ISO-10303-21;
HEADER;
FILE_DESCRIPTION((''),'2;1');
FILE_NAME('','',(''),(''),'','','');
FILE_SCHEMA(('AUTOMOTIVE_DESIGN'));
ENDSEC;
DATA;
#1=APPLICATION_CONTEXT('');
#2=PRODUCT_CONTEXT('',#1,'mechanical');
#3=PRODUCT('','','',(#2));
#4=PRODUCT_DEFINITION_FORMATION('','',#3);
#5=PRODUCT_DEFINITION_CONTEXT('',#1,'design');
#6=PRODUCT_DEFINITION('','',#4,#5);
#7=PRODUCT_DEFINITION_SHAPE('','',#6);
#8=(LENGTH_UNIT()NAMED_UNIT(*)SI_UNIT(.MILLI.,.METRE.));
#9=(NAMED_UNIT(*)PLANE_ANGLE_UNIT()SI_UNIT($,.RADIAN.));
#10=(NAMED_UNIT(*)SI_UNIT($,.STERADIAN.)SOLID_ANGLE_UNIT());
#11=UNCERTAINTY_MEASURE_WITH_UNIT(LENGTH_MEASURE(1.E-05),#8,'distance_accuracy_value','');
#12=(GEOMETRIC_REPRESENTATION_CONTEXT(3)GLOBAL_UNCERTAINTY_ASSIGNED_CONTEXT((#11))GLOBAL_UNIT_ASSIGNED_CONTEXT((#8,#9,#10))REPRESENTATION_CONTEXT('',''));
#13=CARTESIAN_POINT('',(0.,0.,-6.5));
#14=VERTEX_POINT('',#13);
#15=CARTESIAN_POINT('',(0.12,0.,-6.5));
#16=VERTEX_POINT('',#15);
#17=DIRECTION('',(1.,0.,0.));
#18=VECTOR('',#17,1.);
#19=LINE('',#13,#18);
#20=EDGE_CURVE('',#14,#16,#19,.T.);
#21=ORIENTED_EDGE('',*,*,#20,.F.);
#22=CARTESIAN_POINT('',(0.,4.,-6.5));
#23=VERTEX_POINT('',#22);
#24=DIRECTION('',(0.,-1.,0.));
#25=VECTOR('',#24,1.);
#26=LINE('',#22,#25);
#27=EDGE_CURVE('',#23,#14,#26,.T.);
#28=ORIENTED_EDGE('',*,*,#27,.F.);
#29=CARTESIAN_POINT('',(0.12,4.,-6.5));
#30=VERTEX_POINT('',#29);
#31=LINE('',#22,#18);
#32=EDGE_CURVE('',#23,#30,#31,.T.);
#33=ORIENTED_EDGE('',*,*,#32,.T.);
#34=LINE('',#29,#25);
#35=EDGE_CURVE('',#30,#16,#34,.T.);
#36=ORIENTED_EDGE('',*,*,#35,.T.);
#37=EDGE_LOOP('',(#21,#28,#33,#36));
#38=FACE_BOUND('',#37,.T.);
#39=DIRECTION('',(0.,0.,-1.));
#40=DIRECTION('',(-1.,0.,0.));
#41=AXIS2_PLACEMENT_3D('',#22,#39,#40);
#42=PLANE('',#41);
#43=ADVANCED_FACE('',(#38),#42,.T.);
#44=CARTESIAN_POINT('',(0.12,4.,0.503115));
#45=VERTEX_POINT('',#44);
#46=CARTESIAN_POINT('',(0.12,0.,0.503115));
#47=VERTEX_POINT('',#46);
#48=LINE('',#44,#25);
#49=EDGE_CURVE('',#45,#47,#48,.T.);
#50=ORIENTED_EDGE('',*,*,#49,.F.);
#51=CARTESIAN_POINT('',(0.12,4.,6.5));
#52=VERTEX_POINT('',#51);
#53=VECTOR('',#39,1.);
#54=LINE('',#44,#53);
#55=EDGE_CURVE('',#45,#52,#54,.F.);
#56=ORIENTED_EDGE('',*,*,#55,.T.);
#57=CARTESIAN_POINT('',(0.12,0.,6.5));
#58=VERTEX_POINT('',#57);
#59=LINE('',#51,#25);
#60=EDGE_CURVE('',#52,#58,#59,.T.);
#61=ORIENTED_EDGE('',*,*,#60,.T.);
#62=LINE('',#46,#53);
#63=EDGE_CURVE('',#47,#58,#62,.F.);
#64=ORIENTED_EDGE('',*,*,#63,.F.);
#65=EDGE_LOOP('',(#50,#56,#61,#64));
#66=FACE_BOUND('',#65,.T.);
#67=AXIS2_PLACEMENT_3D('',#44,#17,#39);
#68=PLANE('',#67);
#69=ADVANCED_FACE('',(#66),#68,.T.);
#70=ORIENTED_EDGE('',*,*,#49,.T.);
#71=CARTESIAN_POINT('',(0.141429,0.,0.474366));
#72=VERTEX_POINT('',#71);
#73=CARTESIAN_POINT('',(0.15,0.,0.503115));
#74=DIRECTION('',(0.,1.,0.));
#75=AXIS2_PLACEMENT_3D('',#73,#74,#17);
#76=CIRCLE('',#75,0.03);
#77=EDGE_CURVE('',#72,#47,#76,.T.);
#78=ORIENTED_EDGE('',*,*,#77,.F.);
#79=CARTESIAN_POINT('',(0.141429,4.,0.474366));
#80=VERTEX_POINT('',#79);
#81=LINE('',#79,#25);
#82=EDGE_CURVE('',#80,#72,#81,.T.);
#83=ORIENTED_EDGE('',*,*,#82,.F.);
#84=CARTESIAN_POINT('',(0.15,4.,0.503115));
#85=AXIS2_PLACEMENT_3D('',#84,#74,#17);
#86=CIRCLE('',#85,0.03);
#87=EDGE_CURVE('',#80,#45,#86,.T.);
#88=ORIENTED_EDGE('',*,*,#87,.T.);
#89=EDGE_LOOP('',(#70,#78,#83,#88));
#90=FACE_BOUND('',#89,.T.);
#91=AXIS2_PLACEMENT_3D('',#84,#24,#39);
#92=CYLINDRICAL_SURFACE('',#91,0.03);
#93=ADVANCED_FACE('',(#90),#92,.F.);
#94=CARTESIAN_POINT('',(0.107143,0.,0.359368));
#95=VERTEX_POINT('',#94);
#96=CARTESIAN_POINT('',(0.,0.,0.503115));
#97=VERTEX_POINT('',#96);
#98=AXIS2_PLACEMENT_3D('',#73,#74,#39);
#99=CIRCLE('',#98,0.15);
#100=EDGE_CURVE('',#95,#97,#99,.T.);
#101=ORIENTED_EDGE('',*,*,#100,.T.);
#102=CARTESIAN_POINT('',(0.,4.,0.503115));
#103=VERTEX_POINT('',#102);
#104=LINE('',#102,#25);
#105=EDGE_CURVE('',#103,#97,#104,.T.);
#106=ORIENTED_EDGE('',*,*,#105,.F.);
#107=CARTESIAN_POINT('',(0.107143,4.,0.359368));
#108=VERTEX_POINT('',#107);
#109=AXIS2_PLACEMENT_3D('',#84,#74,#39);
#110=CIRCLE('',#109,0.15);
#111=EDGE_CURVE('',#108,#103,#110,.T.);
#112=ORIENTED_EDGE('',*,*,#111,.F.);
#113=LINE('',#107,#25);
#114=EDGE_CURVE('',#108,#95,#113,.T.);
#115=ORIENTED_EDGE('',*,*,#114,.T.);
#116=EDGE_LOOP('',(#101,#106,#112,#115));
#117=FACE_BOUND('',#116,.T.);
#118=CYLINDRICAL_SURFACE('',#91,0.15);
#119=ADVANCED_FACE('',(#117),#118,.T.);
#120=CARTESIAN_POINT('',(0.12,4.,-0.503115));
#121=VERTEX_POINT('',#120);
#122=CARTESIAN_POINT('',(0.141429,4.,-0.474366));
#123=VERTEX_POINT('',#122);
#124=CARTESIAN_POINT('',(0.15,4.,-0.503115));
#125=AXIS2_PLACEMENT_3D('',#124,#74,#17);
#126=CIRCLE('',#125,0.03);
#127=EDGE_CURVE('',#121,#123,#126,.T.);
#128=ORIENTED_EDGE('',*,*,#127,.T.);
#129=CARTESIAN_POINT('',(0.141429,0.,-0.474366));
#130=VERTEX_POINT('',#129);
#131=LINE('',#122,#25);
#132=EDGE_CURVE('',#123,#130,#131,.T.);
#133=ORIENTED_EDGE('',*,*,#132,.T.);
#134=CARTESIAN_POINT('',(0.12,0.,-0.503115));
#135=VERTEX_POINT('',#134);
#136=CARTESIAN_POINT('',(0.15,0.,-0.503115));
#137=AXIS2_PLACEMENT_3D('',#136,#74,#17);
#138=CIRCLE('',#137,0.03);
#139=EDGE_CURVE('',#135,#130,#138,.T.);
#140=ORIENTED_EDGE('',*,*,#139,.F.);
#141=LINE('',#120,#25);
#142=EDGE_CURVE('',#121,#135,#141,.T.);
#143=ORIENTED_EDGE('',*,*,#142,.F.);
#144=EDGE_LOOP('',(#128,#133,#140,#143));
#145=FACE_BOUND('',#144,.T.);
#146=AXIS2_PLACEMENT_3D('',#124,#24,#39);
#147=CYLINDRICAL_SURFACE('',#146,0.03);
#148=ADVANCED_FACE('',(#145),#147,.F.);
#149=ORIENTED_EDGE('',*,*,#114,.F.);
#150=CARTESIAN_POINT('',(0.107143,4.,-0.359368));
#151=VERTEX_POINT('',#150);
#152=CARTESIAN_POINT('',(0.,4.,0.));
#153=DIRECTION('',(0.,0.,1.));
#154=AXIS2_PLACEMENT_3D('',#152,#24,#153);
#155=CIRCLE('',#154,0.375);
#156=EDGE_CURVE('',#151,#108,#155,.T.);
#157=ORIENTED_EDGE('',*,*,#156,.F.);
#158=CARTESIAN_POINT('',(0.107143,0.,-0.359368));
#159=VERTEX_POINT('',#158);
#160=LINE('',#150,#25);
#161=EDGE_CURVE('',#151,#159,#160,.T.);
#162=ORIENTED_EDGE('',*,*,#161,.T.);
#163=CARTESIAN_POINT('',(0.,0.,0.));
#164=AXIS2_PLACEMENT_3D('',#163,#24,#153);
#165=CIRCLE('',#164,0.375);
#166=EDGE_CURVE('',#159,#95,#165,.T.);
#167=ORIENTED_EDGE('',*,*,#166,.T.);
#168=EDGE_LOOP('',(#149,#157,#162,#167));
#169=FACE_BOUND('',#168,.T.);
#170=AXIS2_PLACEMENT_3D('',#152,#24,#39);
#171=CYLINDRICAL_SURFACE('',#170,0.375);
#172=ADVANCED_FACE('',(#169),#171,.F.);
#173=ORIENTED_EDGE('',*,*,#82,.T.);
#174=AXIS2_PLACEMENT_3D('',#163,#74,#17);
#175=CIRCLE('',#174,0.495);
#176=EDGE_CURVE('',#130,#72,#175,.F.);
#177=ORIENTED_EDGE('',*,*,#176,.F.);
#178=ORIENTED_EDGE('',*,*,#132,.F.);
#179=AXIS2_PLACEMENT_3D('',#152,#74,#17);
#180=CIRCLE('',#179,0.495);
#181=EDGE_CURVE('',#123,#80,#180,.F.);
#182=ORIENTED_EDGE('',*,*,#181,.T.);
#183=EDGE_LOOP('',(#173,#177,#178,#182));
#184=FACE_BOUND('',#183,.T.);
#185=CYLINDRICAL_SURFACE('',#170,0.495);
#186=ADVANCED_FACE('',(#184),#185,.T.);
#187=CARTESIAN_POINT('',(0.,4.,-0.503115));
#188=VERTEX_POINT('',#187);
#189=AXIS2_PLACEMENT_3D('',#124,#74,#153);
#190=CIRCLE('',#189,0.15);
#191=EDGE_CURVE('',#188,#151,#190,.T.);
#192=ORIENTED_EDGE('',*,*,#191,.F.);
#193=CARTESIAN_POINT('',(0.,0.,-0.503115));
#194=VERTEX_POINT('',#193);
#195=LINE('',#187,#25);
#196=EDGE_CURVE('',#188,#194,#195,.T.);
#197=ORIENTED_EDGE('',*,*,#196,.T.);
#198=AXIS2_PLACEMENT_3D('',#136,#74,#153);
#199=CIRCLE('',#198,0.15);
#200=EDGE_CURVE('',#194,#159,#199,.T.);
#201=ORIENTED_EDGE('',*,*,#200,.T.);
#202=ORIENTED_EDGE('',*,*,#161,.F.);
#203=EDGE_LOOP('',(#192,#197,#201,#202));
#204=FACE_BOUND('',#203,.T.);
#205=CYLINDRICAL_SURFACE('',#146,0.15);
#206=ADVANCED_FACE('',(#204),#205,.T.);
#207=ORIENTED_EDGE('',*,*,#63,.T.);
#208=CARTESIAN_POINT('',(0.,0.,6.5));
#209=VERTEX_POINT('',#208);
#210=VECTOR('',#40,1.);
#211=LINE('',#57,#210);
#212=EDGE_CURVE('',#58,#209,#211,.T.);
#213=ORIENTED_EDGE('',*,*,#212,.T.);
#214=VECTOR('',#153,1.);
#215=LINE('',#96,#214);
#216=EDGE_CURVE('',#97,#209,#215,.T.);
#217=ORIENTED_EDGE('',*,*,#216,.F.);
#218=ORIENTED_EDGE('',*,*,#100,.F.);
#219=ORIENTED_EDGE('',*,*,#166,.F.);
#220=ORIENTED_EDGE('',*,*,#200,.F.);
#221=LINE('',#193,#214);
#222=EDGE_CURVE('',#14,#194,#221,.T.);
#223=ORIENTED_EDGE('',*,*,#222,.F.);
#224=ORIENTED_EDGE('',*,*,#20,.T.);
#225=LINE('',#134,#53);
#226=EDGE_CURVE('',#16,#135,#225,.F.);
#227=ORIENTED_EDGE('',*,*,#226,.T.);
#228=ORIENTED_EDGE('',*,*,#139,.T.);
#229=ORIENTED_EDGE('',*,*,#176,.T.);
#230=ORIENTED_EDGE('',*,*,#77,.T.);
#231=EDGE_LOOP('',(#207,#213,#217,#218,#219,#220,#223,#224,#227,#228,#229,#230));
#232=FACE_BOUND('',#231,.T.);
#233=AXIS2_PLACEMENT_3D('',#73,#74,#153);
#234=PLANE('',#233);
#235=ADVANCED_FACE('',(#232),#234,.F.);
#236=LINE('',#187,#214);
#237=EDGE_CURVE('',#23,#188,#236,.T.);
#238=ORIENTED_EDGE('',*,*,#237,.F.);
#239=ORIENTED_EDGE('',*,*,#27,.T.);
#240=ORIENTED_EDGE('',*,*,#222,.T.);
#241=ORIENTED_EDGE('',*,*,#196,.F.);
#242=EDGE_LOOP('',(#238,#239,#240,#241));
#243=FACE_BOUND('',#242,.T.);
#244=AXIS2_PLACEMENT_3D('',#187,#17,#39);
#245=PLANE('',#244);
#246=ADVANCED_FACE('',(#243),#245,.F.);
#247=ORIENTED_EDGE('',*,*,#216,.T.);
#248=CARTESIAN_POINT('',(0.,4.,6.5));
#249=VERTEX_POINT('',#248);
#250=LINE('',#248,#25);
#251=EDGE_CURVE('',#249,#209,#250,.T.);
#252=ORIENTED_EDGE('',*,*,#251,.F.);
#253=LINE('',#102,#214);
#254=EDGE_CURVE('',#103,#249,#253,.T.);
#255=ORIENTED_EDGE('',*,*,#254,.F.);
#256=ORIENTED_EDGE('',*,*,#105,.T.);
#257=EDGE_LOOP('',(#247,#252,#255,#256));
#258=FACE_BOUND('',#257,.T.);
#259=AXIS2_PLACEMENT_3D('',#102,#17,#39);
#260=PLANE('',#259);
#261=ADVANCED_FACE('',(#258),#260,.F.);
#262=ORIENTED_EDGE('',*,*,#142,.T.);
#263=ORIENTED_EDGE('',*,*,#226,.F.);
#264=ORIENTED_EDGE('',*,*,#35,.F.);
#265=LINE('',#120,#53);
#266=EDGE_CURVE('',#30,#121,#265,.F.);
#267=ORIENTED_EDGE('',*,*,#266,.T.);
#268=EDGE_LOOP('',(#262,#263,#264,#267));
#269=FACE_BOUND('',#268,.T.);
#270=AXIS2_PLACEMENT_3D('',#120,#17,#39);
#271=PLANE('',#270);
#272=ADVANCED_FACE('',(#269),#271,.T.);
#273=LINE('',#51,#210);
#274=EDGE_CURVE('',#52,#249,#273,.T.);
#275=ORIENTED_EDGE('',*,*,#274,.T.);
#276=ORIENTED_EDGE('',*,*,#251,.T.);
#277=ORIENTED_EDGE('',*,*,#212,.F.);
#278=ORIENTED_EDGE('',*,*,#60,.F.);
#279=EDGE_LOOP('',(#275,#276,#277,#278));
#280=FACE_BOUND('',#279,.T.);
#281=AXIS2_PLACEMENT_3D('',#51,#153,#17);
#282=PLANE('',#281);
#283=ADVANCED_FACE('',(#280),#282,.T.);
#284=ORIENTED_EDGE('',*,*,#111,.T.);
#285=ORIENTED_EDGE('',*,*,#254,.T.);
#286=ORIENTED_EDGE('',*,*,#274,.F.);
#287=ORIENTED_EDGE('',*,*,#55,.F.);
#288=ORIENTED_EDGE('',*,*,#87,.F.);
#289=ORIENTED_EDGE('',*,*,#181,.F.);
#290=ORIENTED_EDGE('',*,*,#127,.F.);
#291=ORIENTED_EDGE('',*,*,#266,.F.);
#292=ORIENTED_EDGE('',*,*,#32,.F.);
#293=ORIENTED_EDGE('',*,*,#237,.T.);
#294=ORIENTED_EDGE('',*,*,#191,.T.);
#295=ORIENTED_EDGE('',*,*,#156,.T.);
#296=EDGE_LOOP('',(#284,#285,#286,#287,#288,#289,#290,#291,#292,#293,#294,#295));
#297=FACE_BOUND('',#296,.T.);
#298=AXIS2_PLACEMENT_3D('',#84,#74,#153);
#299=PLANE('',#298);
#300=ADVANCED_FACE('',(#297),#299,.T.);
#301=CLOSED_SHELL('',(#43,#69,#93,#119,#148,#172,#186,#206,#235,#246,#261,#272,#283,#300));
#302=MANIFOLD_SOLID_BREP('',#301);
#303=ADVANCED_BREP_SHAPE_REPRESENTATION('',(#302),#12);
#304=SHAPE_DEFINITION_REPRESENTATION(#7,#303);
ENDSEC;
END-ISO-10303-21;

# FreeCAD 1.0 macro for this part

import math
import FreeCAD as App
import Part
import Sketcher
from FreeCAD import Vector
Q = App.Units.Quantity

doc = App.newDocument("Part")
body = doc.addObject("PartDesign::Body", "Body")

sketch1 = doc.addObject("Sketcher::SketchObject", "Sketch")
body.addObject(sketch1)
sketch1.AttachmentSupport = (doc.XZ_Plane, [""])
sketch1.MapMode = "FlatFace"
sketch1.addGeometry([
    Part.LineSegment(Vector(0, 0.503, 0), Vector(0, 6.5, 0)),
    Part.LineSegment(Vector(0, 6.5, 0), Vector(0.12, 6.5, 0)),
    Part.LineSegment(Vector(0.12, 6.5, 0), Vector(0.12, 0.503, 0)),
    Part.ArcOfCircle(Part.Circle(Vector(0.15, 0.503, 0), Vector(0, 0, 1), 0.03), math.radians(180), math.radians(253)),
    Part.ArcOfCircle(Part.Circle(Vector(0, 0, 0), Vector(0, 0, 1), 0.495), math.radians(-73), math.radians(73)),
    Part.ArcOfCircle(Part.Circle(Vector(0.15, -0.503, 0), Vector(0, 0, 1), 0.03), math.radians(107), math.radians(180)),
    Part.LineSegment(Vector(0.12, -0.503, 0), Vector(0.12, -6.5, 0)),
    Part.LineSegment(Vector(0.12, -6.5, 0), Vector(0, -6.5, 0)),
    Part.LineSegment(Vector(0, -6.5, 0), Vector(0, -0.503, 0)),
    Part.ArcOfCircle(Part.Circle(Vector(0.15, -0.503, 0), Vector(0, 0, 1), 0.15), math.radians(107), math.radians(180)),
    Part.ArcOfCircle(Part.Circle(Vector(0, 0, 0), Vector(0, 0, 1), 0.375), math.radians(-73), math.radians(73)),
    Part.ArcOfCircle(Part.Circle(Vector(0.15, 0.503, 0), Vector(0, 0, 1), 0.15), math.radians(180), math.radians(253)),
], False)
sketch1.addConstraint([
    Sketcher.Constraint("Coincident", 0, 2, 1, 1),
    Sketcher.Constraint("Coincident", 1, 2, 2, 1),
    Sketcher.Constraint("Tangent", 2, 2, 3, 1),
    Sketcher.Constraint("Tangent", 3, 2, 4, 2),
    Sketcher.Constraint("Tangent", 4, 1, 5, 1),
    Sketcher.Constraint("Tangent", 5, 2, 6, 1),
    Sketcher.Constraint("Coincident", 6, 2, 7, 1),
    Sketcher.Constraint("Coincident", 7, 2, 8, 1),
    Sketcher.Constraint("Tangent", 8, 2, 9, 2),
    Sketcher.Constraint("Tangent", 9, 1, 10, 1),
    Sketcher.Constraint("Tangent", 10, 2, 11, 2),
    Sketcher.Constraint("Tangent", 11, 1, 0, 1),
    Sketcher.Constraint("Vertical", 0),
    Sketcher.Constraint("Horizontal", 1),
    Sketcher.Constraint("Vertical", 2),
    Sketcher.Constraint("Vertical", 6),
    Sketcher.Constraint("Horizontal", 7),
    Sketcher.Constraint("Vertical", 8),
    Sketcher.Constraint("Coincident", 4, 3, -1, 1),
    Sketcher.Constraint("Coincident", 10, 3, -1, 1),
    Sketcher.Constraint("Coincident", 9, 3, 5, 3),
    Sketcher.Constraint("Coincident", 11, 3, 3, 3),
    Sketcher.Constraint("Equal", 3, 5),
    Sketcher.Constraint("Symmetric", 0, 2, 7, 2, -1, 1),
    Sketcher.Constraint("PointOnObject", 0, 2, -2),
    Sketcher.Constraint("Radius", 3, Q("0.03 mm")),
    Sketcher.Constraint("Radius", 9, Q("0.15 mm")),
    Sketcher.Constraint("Radius", 4, Q("0.495 mm")),
    Sketcher.Constraint("DistanceY", -1, 1, 0, 2, Q("6.5 mm")),
])
pad1 = doc.addObject("PartDesign::Pad", "Pad")
body.addObject(pad1)
pad1.Profile = sketch1
pad1.Length = 4
pad1.Reversed = True

doc.recompute()
